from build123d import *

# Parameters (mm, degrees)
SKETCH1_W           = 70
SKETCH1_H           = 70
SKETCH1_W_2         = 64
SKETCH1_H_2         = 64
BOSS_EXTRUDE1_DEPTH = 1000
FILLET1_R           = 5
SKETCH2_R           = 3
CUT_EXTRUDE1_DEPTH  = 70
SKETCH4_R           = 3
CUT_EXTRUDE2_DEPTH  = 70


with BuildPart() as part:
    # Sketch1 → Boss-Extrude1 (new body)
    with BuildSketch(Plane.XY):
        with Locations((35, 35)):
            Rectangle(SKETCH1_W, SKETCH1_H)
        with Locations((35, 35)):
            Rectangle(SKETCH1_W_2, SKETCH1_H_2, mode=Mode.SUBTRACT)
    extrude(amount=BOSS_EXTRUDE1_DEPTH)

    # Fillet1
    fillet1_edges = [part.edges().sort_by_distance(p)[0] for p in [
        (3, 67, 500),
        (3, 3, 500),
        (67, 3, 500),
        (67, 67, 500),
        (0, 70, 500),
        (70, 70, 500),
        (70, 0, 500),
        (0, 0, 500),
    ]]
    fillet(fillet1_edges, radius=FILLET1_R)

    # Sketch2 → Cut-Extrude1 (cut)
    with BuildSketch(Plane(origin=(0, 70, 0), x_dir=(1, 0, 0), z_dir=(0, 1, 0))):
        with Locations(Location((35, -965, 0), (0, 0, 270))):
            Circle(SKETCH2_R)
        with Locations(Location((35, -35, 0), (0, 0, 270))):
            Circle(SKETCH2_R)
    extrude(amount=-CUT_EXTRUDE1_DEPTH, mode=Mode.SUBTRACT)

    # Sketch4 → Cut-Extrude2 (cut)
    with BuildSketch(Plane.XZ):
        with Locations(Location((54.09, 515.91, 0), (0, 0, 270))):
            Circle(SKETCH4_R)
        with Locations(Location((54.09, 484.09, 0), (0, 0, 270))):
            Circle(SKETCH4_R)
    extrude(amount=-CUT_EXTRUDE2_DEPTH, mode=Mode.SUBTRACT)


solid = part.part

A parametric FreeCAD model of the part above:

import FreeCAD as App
import Part
import Sketcher

V = App.Vector
Q = App.Units.Quantity


def edges_at(feature, points):
    """Names of the edges that pass closest to the given points."""
    edges = feature.Shape.Edges
    near = lambda p: min(range(len(edges)), key=lambda i: edges[i].distToShape(Part.Vertex(*p))[0])
    return sorted({f"Edge{near(p) + 1}" for p in points})


def add_polygon(sketch, points):
    """Adds a closed chain of lines whose ends are joined by coincident constraints."""
    first, n = sketch.GeometryCount, len(points)
    for a, b in zip(points, points[1:] + points[:1]):
        sketch.addGeometry(Part.LineSegment(App.Vector(*a, 0), App.Vector(*b, 0)), False)
    for i in range(n):
        sketch.addConstraint(Sketcher.Constraint("Coincident", first + i, 2, first + (i + 1) % n, 1))

doc = App.newDocument("Part")
body = doc.addObject("PartDesign::Body", "Body")

# Sketch on XY plane
sketch1 = body.newObject("Sketcher::SketchObject", "Sketch")
sketch1.AttachmentSupport = (doc.getObject("XY_Plane"), [""])
sketch1.MapMode = "FlatFace"
add_polygon(sketch1, [(0, 70), (0, 0), (70, 0), (70, 70)])  # lines 0-3
add_polygon(sketch1, [(67, 3), (3, 3), (3, 67), (67, 67)])  # lines 4-7
sketch1.addConstraint(Sketcher.Constraint("Vertical", 0))
sketch1.addConstraint(Sketcher.Constraint("Horizontal", 1))
sketch1.addConstraint(Sketcher.Constraint("Vertical", 2))
sketch1.addConstraint(Sketcher.Constraint("Horizontal", 3))
sketch1.addConstraint(Sketcher.Constraint("Horizontal", 4))
sketch1.addConstraint(Sketcher.Constraint("Vertical", 5))
sketch1.addConstraint(Sketcher.Constraint("Horizontal", 6))
sketch1.addConstraint(Sketcher.Constraint("Vertical", 7))
sketch1.addConstraint(Sketcher.Constraint("Coincident", 0, 2, -1, 1))
sketch1.addConstraint(Sketcher.Constraint("Equal", 3, 0))
sketch1.addConstraint(Sketcher.Constraint("Equal", 6, 5))
sketch1.addConstraint(Sketcher.Constraint("DistanceX", 1, 1, 1, 2, Q("70 mm")))
sketch1.addConstraint(Sketcher.Constraint("DistanceX", 4, 2, 4, 1, Q("64 mm")))
sketch1.addConstraint(Sketcher.Constraint("DistanceX", -1, 1, 4, 2, Q("3 mm")))
sketch1.addConstraint(Sketcher.Constraint("DistanceY", -1, 1, 4, 2, Q("3 mm")))
pad1 = body.newObject("PartDesign::Pad", "Pad")
pad1.Profile = sketch1
pad1.Length = 1000
doc.recompute()

fillet = body.newObject("PartDesign::Fillet", "Fillet")
fillet.Base = (pad1, edges_at(pad1, [
    (3, 67, 500),
    (3, 3, 500),
    (67, 3, 500),
    (67, 67, 500),
    (0, 70, 500),
    (70, 70, 500),
    (70, 0, 500),
    (0, 0, 500),
]))
fillet.Radius = 5

# Sketch on XZ plane
sketch2 = body.newObject("Sketcher::SketchObject", "Sketch001")
sketch2.AttachmentSupport = (doc.getObject("XZ_Plane"), [""])
sketch2.MapMode = "FlatFace"
sketch2.AttachmentOffset = App.Placement(V(0, 0, -70), App.Rotation())
sketch2.addGeometry(Part.Circle(V(35, 965, 0), V(0, 0, 1), 3), False)
sketch2.addGeometry(Part.Circle(V(35, 35, 0), V(0, 0, 1), 3), False)
sketch2.addConstraint(Sketcher.Constraint("Equal", 0, 1))
sketch2.addConstraint(Sketcher.Constraint("Vertical", 0, 3, 1, 3))
sketch2.addConstraint(Sketcher.Constraint("Diameter", 0, Q("6 mm")))
sketch2.addConstraint(Sketcher.Constraint("DistanceX", -1, 1, 0, 3, Q("35 mm")))
sketch2.addConstraint(Sketcher.Constraint("DistanceY", -1, 1, 0, 3, Q("965 mm")))
sketch2.addConstraint(Sketcher.Constraint("DistanceY", -1, 1, 1, 3, Q("35 mm")))
pocket1 = body.newObject("PartDesign::Pocket", "Pocket")
pocket1.Profile = sketch2
pocket1.Length = 70
pocket1.Reversed = True

# Sketch on XZ plane
sketch3 = body.newObject("Sketcher::SketchObject", "Sketch002")
sketch3.AttachmentSupport = (doc.getObject("XZ_Plane"), [""])
sketch3.MapMode = "FlatFace"
sketch3.addGeometry(Part.Circle(V(54.1, 515.9, 0), V(0, 0, 1), 3), False)
sketch3.addGeometry(Part.Circle(V(54.1, 484.1, 0), V(0, 0, 1), 3), False)
sketch3.addConstraint(Sketcher.Constraint("Equal", 0, 1))
sketch3.addConstraint(Sketcher.Constraint("Vertical", 0, 3, 1, 3))
sketch3.addConstraint(Sketcher.Constraint("Diameter", 0, Q("6 mm")))
sketch3.addConstraint(Sketcher.Constraint("DistanceX", -1, 1, 0, 3, Q("54.09 mm")))
sketch3.addConstraint(Sketcher.Constraint("DistanceY", -1, 1, 0, 3, Q("515.91 mm")))
sketch3.addConstraint(Sketcher.Constraint("DistanceY", -1, 1, 1, 3, Q("484.09 mm")))
pocket2 = body.newObject("PartDesign::Pocket", "Pocket001")
pocket2.Profile = sketch3
pocket2.Length = 70

doc.recompute()
